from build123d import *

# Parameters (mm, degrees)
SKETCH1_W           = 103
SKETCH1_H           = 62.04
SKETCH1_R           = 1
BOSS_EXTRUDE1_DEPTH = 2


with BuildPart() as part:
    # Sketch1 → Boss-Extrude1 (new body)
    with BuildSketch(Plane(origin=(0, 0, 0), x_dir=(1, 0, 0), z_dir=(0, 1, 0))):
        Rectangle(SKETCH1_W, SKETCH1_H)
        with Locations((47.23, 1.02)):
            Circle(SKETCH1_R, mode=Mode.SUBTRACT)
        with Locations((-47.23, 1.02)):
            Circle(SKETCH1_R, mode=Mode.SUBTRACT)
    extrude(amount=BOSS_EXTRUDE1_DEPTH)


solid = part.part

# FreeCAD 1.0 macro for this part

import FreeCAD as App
import Part
import Sketcher

V = App.Vector


def add_polygon(sketch, points):
    """Adds a closed chain of lines whose ends are joined by coincident constraints."""
    first, n = sketch.GeometryCount, len(points)
    for a, b in zip(points, points[1:] + points[:1]):
        sketch.addGeometry(Part.LineSegment(App.Vector(*a, 0), App.Vector(*b, 0)), False)
    for i in range(n):
        sketch.addConstraint(Sketcher.Constraint("Coincident", first + i, 2, first + (i + 1) % n, 1))

doc = App.newDocument("Part")
body = doc.addObject("PartDesign::Body", "Body")

# Sketch on XZ plane
sketch1 = body.newObject("Sketcher::SketchObject", "Sketch")
sketch1.AttachmentSupport = (doc.getObject("XZ_Plane"), [""])
sketch1.MapMode = "FlatFace"
add_polygon(sketch1, [(-51.5, -31), (-51.5, 31), (51.5, 31), (51.5, -31)])  # lines 0-3
sketch1.addGeometry(Part.Circle(V(-47.2, -1, 0), V(0, 0, 1), 1), False)  # 4
sketch1.addGeometry(Part.Circle(V(47.2, -1, 0), V(0, 0, 1), 1), False)  # 5
sketch1.addConstraint([
    Sketcher.Constraint("Vertical", 0),
    Sketcher.Constraint("Horizontal", 1),
    Sketcher.Constraint("Vertical", 2),
    Sketcher.Constraint("Horizontal", 3),
    Sketcher.Constraint("Equal", 4, 5),
    Sketcher.Constraint("Symmetric", 0, 2, 2, 2, -1, 1),
    Sketcher.Constraint("Symmetric", 4, 3, 5, 3, -2),
    Sketcher.Constraint("Diameter", 4, 2.0),
    Sketcher.Constraint("DistanceX", 1, 1, 1, 2, 103.0),
    Sketcher.Constraint("DistanceY", 2, 2, 5, 3, 30.0),
    Sketcher.Constraint("DistanceY", 0, 1, 0, 2, 62.04),
    Sketcher.Constraint("DistanceX", 4, 3, -1, 1, 47.23),
])
pad1 = body.newObject("PartDesign::Pad", "Pad")
pad1.Profile = sketch1
pad1.Length = 2
pad1.Reversed = True

doc.recompute()
